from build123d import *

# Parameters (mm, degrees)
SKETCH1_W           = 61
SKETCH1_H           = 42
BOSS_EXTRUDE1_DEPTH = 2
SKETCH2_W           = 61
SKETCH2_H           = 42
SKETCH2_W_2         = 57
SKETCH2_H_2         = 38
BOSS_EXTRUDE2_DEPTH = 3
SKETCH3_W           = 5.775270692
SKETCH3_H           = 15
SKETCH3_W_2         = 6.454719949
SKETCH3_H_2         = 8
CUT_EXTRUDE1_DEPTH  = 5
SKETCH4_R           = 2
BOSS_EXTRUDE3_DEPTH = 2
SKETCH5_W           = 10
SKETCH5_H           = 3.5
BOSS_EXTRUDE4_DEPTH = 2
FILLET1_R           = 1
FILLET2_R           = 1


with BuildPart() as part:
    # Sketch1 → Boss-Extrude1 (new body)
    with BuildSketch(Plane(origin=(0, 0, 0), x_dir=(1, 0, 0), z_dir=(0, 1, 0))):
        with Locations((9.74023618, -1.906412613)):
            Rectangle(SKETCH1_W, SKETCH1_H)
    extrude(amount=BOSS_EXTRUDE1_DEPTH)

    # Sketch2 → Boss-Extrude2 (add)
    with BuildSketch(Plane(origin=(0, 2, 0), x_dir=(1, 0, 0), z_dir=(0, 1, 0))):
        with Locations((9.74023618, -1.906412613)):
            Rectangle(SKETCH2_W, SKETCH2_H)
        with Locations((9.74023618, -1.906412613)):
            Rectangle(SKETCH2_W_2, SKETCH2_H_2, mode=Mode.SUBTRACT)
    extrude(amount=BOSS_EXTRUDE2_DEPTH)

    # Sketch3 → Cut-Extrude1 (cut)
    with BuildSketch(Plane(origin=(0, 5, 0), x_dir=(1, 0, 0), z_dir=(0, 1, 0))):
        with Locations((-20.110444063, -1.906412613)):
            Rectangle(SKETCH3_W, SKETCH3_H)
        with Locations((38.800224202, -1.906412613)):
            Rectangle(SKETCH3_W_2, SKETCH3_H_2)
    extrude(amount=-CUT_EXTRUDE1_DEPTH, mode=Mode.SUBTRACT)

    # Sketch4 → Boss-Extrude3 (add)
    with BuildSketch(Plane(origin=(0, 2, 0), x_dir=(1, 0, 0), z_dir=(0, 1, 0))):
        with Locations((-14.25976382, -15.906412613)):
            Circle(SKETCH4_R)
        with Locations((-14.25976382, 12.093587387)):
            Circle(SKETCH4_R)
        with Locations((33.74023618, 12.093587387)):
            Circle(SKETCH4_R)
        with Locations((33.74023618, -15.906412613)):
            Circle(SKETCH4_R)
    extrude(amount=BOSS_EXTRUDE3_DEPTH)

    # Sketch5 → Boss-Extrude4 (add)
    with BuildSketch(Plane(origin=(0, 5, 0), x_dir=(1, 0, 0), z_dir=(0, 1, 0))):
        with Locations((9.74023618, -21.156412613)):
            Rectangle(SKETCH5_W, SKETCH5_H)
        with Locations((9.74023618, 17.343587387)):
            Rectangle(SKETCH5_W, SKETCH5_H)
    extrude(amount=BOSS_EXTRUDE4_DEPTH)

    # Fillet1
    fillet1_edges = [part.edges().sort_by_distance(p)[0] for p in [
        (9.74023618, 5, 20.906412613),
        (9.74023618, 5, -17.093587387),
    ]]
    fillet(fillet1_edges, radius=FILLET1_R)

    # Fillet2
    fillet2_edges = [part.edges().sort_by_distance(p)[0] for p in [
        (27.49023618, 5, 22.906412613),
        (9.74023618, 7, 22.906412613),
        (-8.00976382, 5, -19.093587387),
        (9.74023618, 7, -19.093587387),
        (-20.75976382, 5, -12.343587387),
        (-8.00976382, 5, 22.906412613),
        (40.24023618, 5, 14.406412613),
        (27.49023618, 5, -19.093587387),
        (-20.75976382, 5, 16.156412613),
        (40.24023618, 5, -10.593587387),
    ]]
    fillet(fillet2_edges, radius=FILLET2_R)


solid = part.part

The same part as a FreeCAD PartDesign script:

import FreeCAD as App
import Part
import Sketcher
Q = App.Units.Quantity


def edges_at(feature, points):
    """Names of the edges that pass closest to the given points."""
    edges = feature.Shape.Edges
    near = lambda p: min(range(len(edges)), key=lambda i: edges[i].distToShape(Part.Vertex(*p))[0])
    return sorted({f"Edge{near(p) + 1}" for p in points})

doc = App.newDocument("Part")
body = doc.addObject("PartDesign::Body", "Body")

sketch1 = doc.addObject("Sketcher::SketchObject", "Sketch")
body.addObject(sketch1)
sketch1.AttachmentSupport = (doc.XZ_Plane, [""])
sketch1.MapMode = "FlatFace"
sketch1.addGeometry([
    Part.LineSegment(App.Vector(-21, -19, 0), App.Vector(-21, 23, 0)),
    Part.LineSegment(App.Vector(-21, 23, 0), App.Vector(40, 23, 0)),
    Part.LineSegment(App.Vector(40, 23, 0), App.Vector(40, -19, 0)),
    Part.LineSegment(App.Vector(40, -19, 0), App.Vector(-21, -19, 0)),
], False)
sketch1.addConstraint([
    Sketcher.Constraint("Coincident", 0, 2, 1, 1),
    Sketcher.Constraint("Coincident", 1, 2, 2, 1),
    Sketcher.Constraint("Coincident", 2, 2, 3, 1),
    Sketcher.Constraint("Coincident", 3, 2, 0, 1),
    Sketcher.Constraint("Vertical", 0),
    Sketcher.Constraint("Horizontal", 1),
    Sketcher.Constraint("Vertical", 2),
    Sketcher.Constraint("Horizontal", 3),
    Sketcher.Constraint("DistanceX", 1, 1, 1, 2, Q("61 mm")),
    Sketcher.Constraint("DistanceY", 0, 1, 0, 2, Q("42 mm")),
    Sketcher.Constraint("DistanceX", 0, 2, -1, 1, Q("20.759764 mm")),
    Sketcher.Constraint("DistanceY", -1, 1, 0, 2, Q("22.906413 mm")),
])
pad1 = doc.addObject("PartDesign::Pad", "Pad")
body.addObject(pad1)
pad1.Profile = sketch1
pad1.Length = 2
pad1.Reversed = True

sketch2 = doc.addObject("Sketcher::SketchObject", "Sketch001")
body.addObject(sketch2)
sketch2.AttachmentSupport = (doc.XZ_Plane, [""])
sketch2.MapMode = "FlatFace"
sketch2.AttachmentOffset = App.Placement(App.Vector(0, 0, -2), App.Rotation())
sketch2.addGeometry([
    Part.LineSegment(App.Vector(-21, -19, 0), App.Vector(-21, 23, 0)),
    Part.LineSegment(App.Vector(-21, 23, 0), App.Vector(40, 23, 0)),
    Part.LineSegment(App.Vector(40, 23, 0), App.Vector(40, -19, 0)),
    Part.LineSegment(App.Vector(40, -19, 0), App.Vector(-21, -19, 0)),
    Part.LineSegment(App.Vector(38, 21, 0), App.Vector(-19, 21, 0)),
    Part.LineSegment(App.Vector(-19, 21, 0), App.Vector(-19, -17, 0)),
    Part.LineSegment(App.Vector(-19, -17, 0), App.Vector(38, -17, 0)),
    Part.LineSegment(App.Vector(38, -17, 0), App.Vector(38, 21, 0)),
], False)
sketch2.addConstraint([
    Sketcher.Constraint("Coincident", 0, 2, 1, 1),
    Sketcher.Constraint("Coincident", 1, 2, 2, 1),
    Sketcher.Constraint("Coincident", 2, 2, 3, 1),
    Sketcher.Constraint("Coincident", 3, 2, 0, 1),
    Sketcher.Constraint("Coincident", 4, 2, 5, 1),
    Sketcher.Constraint("Coincident", 5, 2, 6, 1),
    Sketcher.Constraint("Coincident", 6, 2, 7, 1),
    Sketcher.Constraint("Coincident", 7, 2, 4, 1),
    Sketcher.Constraint("Vertical", 0),
    Sketcher.Constraint("Horizontal", 1),
    Sketcher.Constraint("Vertical", 2),
    Sketcher.Constraint("Horizontal", 3),
    Sketcher.Constraint("Horizontal", 4),
    Sketcher.Constraint("Vertical", 5),
    Sketcher.Constraint("Horizontal", 6),
    Sketcher.Constraint("Vertical", 7),
    Sketcher.Constraint("DistanceX", 1, 1, 1, 2, Q("61 mm")),
    Sketcher.Constraint("DistanceX", 4, 2, 4, 1, Q("57 mm")),
    Sketcher.Constraint("DistanceY", 0, 1, 0, 2, Q("42 mm")),
    Sketcher.Constraint("DistanceY", 5, 2, 5, 1, Q("38 mm")),
    Sketcher.Constraint("DistanceX", 0, 2, 4, 2, Q("2 mm")),
    Sketcher.Constraint("DistanceY", 4, 2, 0, 2, Q("2 mm")),
    Sketcher.Constraint("DistanceX", 0, 2, -1, 1, Q("20.759764 mm")),
    Sketcher.Constraint("DistanceY", -1, 1, 0, 2, Q("22.906413 mm")),
])
pad2 = doc.addObject("PartDesign::Pad", "Pad001")
body.addObject(pad2)
pad2.Profile = sketch2
pad2.Length = 3
pad2.Reversed = True

sketch3 = doc.addObject("Sketcher::SketchObject", "Sketch002")
body.addObject(sketch3)
sketch3.AttachmentSupport = (doc.XZ_Plane, [""])
sketch3.MapMode = "FlatFace"
sketch3.AttachmentOffset = App.Placement(App.Vector(0, 0, -5), App.Rotation())
sketch3.addGeometry([
    Part.LineSegment(App.Vector(-23, -6, 0), App.Vector(-23, 9, 0)),
    Part.LineSegment(App.Vector(-23, 9, 0), App.Vector(-17, 9, 0)),
    Part.LineSegment(App.Vector(-17, 9, 0), App.Vector(-17, -6, 0)),
    Part.LineSegment(App.Vector(-17, -6, 0), App.Vector(-23, -6, 0)),
    Part.LineSegment(App.Vector(36, -2, 0), App.Vector(36, 6, 0)),
    Part.LineSegment(App.Vector(36, 6, 0), App.Vector(42, 6, 0)),
    Part.LineSegment(App.Vector(42, 6, 0), App.Vector(42, -2, 0)),
    Part.LineSegment(App.Vector(42, -2, 0), App.Vector(36, -2, 0)),
], False)
sketch3.addConstraint([
    Sketcher.Constraint("Coincident", 0, 2, 1, 1),
    Sketcher.Constraint("Coincident", 1, 2, 2, 1),
    Sketcher.Constraint("Coincident", 2, 2, 3, 1),
    Sketcher.Constraint("Coincident", 3, 2, 0, 1),
    Sketcher.Constraint("Coincident", 4, 2, 5, 1),
    Sketcher.Constraint("Coincident", 5, 2, 6, 1),
    Sketcher.Constraint("Coincident", 6, 2, 7, 1),
    Sketcher.Constraint("Coincident", 7, 2, 4, 1),
    Sketcher.Constraint("Vertical", 0),
    Sketcher.Constraint("Horizontal", 1),
    Sketcher.Constraint("Vertical", 2),
    Sketcher.Constraint("Horizontal", 3),
    Sketcher.Constraint("Vertical", 4),
    Sketcher.Constraint("Horizontal", 5),
    Sketcher.Constraint("Vertical", 6),
    Sketcher.Constraint("Horizontal", 7),
    Sketcher.Constraint("DistanceY", 0, 1, 0, 2, Q("15 mm")),
    Sketcher.Constraint("DistanceY", 4, 1, 4, 2, Q("8 mm")),
    Sketcher.Constraint("DistanceY", 4, 2, 1, 2, Q("3.5 mm")),
    Sketcher.Constraint("DistanceX", 1, 1, 1, 2, Q("5.775271 mm")),
    Sketcher.Constraint("DistanceX", 5, 1, 5, 2, Q("6.45472 mm")),
    Sketcher.Constraint("DistanceX", 0, 2, -1, 1, Q("22.998079 mm")),
    Sketcher.Constraint("DistanceY", -1, 1, 0, 2, Q("9.406413 mm")),
    Sketcher.Constraint("DistanceX", -1, 1, 4, 2, Q("35.572864 mm")),
])
pocket1 = doc.addObject("PartDesign::Pocket", "Pocket")
body.addObject(pocket1)
pocket1.Profile = sketch3
pocket1.Length = 5
pocket1.Reversed = True

sketch4 = doc.addObject("Sketcher::SketchObject", "Sketch003")
body.addObject(sketch4)
sketch4.AttachmentSupport = (doc.XZ_Plane, [""])
sketch4.MapMode = "FlatFace"
sketch4.AttachmentOffset = App.Placement(App.Vector(0, 0, -2), App.Rotation())
sketch4.addGeometry([
    Part.Circle(App.Vector(-14.3, 15.9, 0), App.Vector(0, 0, 1), 2),
    Part.Circle(App.Vector(-14.3, -12.1, 0), App.Vector(0, 0, 1), 2),
    Part.Circle(App.Vector(33.7, -12.1, 0), App.Vector(0, 0, 1), 2),
    Part.Circle(App.Vector(33.7, 15.9, 0), App.Vector(0, 0, 1), 2),
], False)
sketch4.addConstraint([
    Sketcher.Constraint("Equal", 0, 1),
    Sketcher.Constraint("Equal", 1, 2),
    Sketcher.Constraint("Equal", 2, 3),
    Sketcher.Constraint("Horizontal", 1, 3, 2, 3),
    Sketcher.Constraint("Horizontal", 0, 3, 3, 3),
    Sketcher.Constraint("Vertical", 0, 3, 1, 3),
    Sketcher.Constraint("Vertical", 2, 3, 3, 3),
    Sketcher.Constraint("Diameter", 0, Q("4 mm")),
    Sketcher.Constraint("DistanceY", 1, 3, 0, 3, Q("28 mm")),
    Sketcher.Constraint("DistanceX", 1, 3, 2, 3, Q("48 mm")),
    Sketcher.Constraint("DistanceX", 0, 3, -1, 1, Q("14.259764 mm")),
    Sketcher.Constraint("DistanceY", -1, 1, 0, 3, Q("15.906413 mm")),
])
pad3 = doc.addObject("PartDesign::Pad", "Pad002")
body.addObject(pad3)
pad3.Profile = sketch4
pad3.Length = 2
pad3.Reversed = True

sketch5 = doc.addObject("Sketcher::SketchObject", "Sketch004")
body.addObject(sketch5)
sketch5.AttachmentSupport = (doc.XZ_Plane, [""])
sketch5.MapMode = "FlatFace"
sketch5.AttachmentOffset = App.Placement(App.Vector(0, 0, -5), App.Rotation())
sketch5.addGeometry([
    Part.LineSegment(App.Vector(4.7, 19.4, 0), App.Vector(4.7, 22.9, 0)),
    Part.LineSegment(App.Vector(4.7, 22.9, 0), App.Vector(14.7, 22.9, 0)),
    Part.LineSegment(App.Vector(14.7, 22.9, 0), App.Vector(14.7, 19.4, 0)),
    Part.LineSegment(App.Vector(14.7, 19.4, 0), App.Vector(4.7, 19.4, 0)),
    Part.LineSegment(App.Vector(4.7, -19.1, 0), App.Vector(4.7, -15.6, 0)),
    Part.LineSegment(App.Vector(4.7, -15.6, 0), App.Vector(14.7, -15.6, 0)),
    Part.LineSegment(App.Vector(14.7, -15.6, 0), App.Vector(14.7, -19.1, 0)),
    Part.LineSegment(App.Vector(14.7, -19.1, 0), App.Vector(4.7, -19.1, 0)),
], False)
sketch5.addConstraint([
    Sketcher.Constraint("Coincident", 0, 2, 1, 1),
    Sketcher.Constraint("Coincident", 1, 2, 2, 1),
    Sketcher.Constraint("Coincident", 2, 2, 3, 1),
    Sketcher.Constraint("Coincident", 3, 2, 0, 1),
    Sketcher.Constraint("Coincident", 4, 2, 5, 1),
    Sketcher.Constraint("Coincident", 5, 2, 6, 1),
    Sketcher.Constraint("Coincident", 6, 2, 7, 1),
    Sketcher.Constraint("Coincident", 7, 2, 4, 1),
    Sketcher.Constraint("Vertical", 0),
    Sketcher.Constraint("Horizontal", 1),
    Sketcher.Constraint("Vertical", 2),
    Sketcher.Constraint("Horizontal", 3),
    Sketcher.Constraint("Vertical", 4),
    Sketcher.Constraint("Horizontal", 5),
    Sketcher.Constraint("Vertical", 6),
    Sketcher.Constraint("Horizontal", 7),
    Sketcher.Constraint("Vertical", 3, 2, 4, 2),
    Sketcher.Constraint("Vertical", 2, 2, 5, 2),
    Sketcher.Constraint("Equal", 2, 4),
    Sketcher.Constraint("DistanceX", 1, 1, 1, 2, Q("10 mm")),
    Sketcher.Constraint("DistanceY", 0, 1, 0, 2, Q("3.5 mm")),
    Sketcher.Constraint("DistanceY", 4, 2, 3, 2, Q("35 mm")),
    Sketcher.Constraint("DistanceX", -1, 1, 0, 2, Q("4.740236 mm")),
    Sketcher.Constraint("DistanceY", -1, 1, 0, 2, Q("22.906413 mm")),
])
pad4 = doc.addObject("PartDesign::Pad", "Pad003")
body.addObject(pad4)
pad4.Profile = sketch5
pad4.Length = 2
pad4.Reversed = True
doc.recompute()

fillet = doc.addObject("PartDesign::Fillet", "Fillet")
body.addObject(fillet)
fillet.Base = (pad4, edges_at(pad4, [(9.74, 5, 20.906), (9.74, 5, -17.094)]))
fillet.Radius = 1
doc.recompute()

fillet2 = doc.addObject("PartDesign::Fillet", "Fillet001")
body.addObject(fillet2)
fillet2.Base = (fillet, edges_at(fillet, [
    (27.49, 5, 22.906),
    (9.74, 7, 22.906),
    (-8.01, 5, -19.094),
    (9.74, 7, -19.094),
    (-20.76, 5, -12.344),
    (-8.01, 5, 22.906),
    (40.24, 5, 14.406),
    (27.49, 5, -19.094),
    (-20.76, 5, 16.156),
    (40.24, 5, -10.594),
]))
fillet2.Radius = 1

doc.recompute()
